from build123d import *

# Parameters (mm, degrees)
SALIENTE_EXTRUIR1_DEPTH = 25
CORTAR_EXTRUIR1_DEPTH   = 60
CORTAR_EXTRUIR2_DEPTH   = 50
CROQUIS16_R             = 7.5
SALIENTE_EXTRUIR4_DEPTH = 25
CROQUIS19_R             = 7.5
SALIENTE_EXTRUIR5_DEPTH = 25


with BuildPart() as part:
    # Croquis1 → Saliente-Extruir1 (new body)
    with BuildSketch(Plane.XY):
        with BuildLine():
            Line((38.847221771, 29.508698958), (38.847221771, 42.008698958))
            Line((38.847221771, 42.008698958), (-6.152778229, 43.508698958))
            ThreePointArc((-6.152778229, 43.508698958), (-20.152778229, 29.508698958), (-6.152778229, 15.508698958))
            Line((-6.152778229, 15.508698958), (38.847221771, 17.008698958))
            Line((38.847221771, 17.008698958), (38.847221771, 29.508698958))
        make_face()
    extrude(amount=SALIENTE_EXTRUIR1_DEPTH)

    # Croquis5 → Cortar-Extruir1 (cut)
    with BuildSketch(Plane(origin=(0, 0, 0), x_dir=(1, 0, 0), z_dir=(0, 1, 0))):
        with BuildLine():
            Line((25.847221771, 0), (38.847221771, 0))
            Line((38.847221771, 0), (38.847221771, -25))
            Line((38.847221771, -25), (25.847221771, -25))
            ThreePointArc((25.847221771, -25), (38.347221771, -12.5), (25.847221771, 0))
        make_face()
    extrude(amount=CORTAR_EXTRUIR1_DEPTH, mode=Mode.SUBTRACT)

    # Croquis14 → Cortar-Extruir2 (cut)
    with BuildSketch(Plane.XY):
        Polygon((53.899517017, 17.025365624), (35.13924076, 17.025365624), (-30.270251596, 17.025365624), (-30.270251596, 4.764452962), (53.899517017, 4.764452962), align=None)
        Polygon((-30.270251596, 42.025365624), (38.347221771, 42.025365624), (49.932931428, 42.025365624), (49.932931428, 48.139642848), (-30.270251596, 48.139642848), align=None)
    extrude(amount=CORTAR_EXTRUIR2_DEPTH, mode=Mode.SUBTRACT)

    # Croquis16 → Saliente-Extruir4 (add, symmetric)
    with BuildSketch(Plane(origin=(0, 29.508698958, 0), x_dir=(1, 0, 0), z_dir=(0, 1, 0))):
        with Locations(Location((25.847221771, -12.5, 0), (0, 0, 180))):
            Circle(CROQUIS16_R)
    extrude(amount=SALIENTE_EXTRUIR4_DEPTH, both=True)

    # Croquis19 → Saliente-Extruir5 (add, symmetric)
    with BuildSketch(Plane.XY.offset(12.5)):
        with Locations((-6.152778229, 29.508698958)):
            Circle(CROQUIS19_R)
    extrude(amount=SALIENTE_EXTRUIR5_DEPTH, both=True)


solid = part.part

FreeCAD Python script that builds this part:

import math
import FreeCAD as App
import Part
import Sketcher

V = App.Vector
Q = App.Units.Quantity


def add_polygon(sketch, points):
    """Adds a closed chain of lines whose ends are joined by coincident constraints."""
    first, n = sketch.GeometryCount, len(points)
    for a, b in zip(points, points[1:] + points[:1]):
        sketch.addGeometry(Part.LineSegment(App.Vector(*a, 0), App.Vector(*b, 0)), False)
    for i in range(n):
        sketch.addConstraint(Sketcher.Constraint("Coincident", first + i, 2, first + (i + 1) % n, 1))

doc = App.newDocument("Part")
body = doc.addObject("PartDesign::Body", "Body")

# Sketch on XY plane
sketch1 = body.newObject("Sketcher::SketchObject", "Sketch")
sketch1.AttachmentSupport = (doc.getObject("XY_Plane"), [""])
sketch1.MapMode = "FlatFace"
sketch1.addGeometry(Part.LineSegment(V(39, 42, 0), V(-6, 44, 0)), False)
sketch1.addGeometry(Part.ArcOfCircle(Part.Circle(V(-6, 30, 0), V(0, 0, 1), 14), math.radians(90), math.radians(270)), False)
sketch1.addGeometry(Part.LineSegment(V(-6, 16, 0), V(39, 17, 0)), False)
sketch1.addGeometry(Part.LineSegment(V(39, 17, 0), V(39, 42, 0)), False)
sketch1.addConstraint(Sketcher.Constraint("Coincident", 0, 2, 1, 1))
sketch1.addConstraint(Sketcher.Constraint("Coincident", 1, 2, 2, 1))
sketch1.addConstraint(Sketcher.Constraint("Coincident", 2, 2, 3, 1))
sketch1.addConstraint(Sketcher.Constraint("Coincident", 3, 2, 0, 1))
sketch1.addConstraint(Sketcher.Constraint("Vertical", 3))
sketch1.addConstraint(Sketcher.Constraint("Vertical", 1, 3, 0, 2))
sketch1.addConstraint(Sketcher.Constraint("Vertical", 0, 2, 1, 2))
sketch1.addConstraint(Sketcher.Constraint("Equal", 0, 2))
sketch1.addConstraint(Sketcher.Constraint("Radius", 1, Q("14 mm")))
sketch1.addConstraint(Sketcher.Constraint("DistanceY", 3, 1, 3, 2, Q("25 mm")))
sketch1.addConstraint(Sketcher.Constraint("DistanceX", 1, 2, 2, 2, Q("45 mm")))
sketch1.addConstraint(Sketcher.Constraint("DistanceY", -1, 1, 1, 3, Q("29.508699 mm")))
sketch1.addConstraint(Sketcher.Constraint("DistanceX", 1, 3, -1, 1, Q("6.152778 mm")))
pad1 = body.newObject("PartDesign::Pad", "Pad")
pad1.Profile = sketch1
pad1.Length = 25

# Sketch on XZ plane
sketch2 = body.newObject("Sketcher::SketchObject", "Sketch001")
sketch2.AttachmentSupport = (doc.getObject("XZ_Plane"), [""])
sketch2.MapMode = "FlatFace"
sketch2.addGeometry(Part.LineSegment(V(39, 0, 0), V(26, 0, 0)), False)
sketch2.addGeometry(Part.ArcOfCircle(Part.Circle(V(26, 12, 0), V(0, 0, 1), 12), math.radians(-90), math.radians(90)), False)
sketch2.addGeometry(Part.LineSegment(V(26, 25, 0), V(39, 25, 0)), False)
sketch2.addGeometry(Part.LineSegment(V(39, 25, 0), V(39, 0, 0)), False)
sketch2.addConstraint(Sketcher.Constraint("Tangent", 0, 2, 1, 1))
sketch2.addConstraint(Sketcher.Constraint("Tangent", 1, 2, 2, 1))
sketch2.addConstraint(Sketcher.Constraint("Coincident", 2, 2, 3, 1))
sketch2.addConstraint(Sketcher.Constraint("Coincident", 3, 2, 0, 1))
sketch2.addConstraint(Sketcher.Constraint("Horizontal", 0))
sketch2.addConstraint(Sketcher.Constraint("Horizontal", 2))
sketch2.addConstraint(Sketcher.Constraint("Vertical", 3))
sketch2.addConstraint(Sketcher.Constraint("PointOnObject", 0, 2, -1))
sketch2.addConstraint(Sketcher.Constraint("Radius", 1, Q("12.5 mm")))
sketch2.addConstraint(Sketcher.Constraint("DistanceX", 0, 2, 0, 1, Q("13 mm")))
sketch2.addConstraint(Sketcher.Constraint("DistanceX", -1, 1, 1, 3, Q("25.847222 mm")))
pocket1 = body.newObject("PartDesign::Pocket", "Pocket")
pocket1.Profile = sketch2
pocket1.Length = 60

# Sketch on XY plane
sketch3 = body.newObject("Sketcher::SketchObject", "Sketch002")
sketch3.AttachmentSupport = (doc.getObject("XY_Plane"), [""])
sketch3.MapMode = "FlatFace"
add_polygon(sketch3, [(54, 17), (-30, 17), (-30, 5), (54, 5)])  # lines 0-3
add_polygon(sketch3, [(-30, 42), (50, 42), (50, 48), (-30, 48)])  # lines 4-7
sketch3.addConstraint(Sketcher.Constraint("Horizontal", 0))
sketch3.addConstraint(Sketcher.Constraint("Vertical", 1))
sketch3.addConstraint(Sketcher.Constraint("Horizontal", 2))
sketch3.addConstraint(Sketcher.Constraint("Vertical", 3))
sketch3.addConstraint(Sketcher.Constraint("Horizontal", 4))
sketch3.addConstraint(Sketcher.Constraint("Vertical", 5))
sketch3.addConstraint(Sketcher.Constraint("Horizontal", 6))
sketch3.addConstraint(Sketcher.Constraint("Vertical", 7))
sketch3.addConstraint(Sketcher.Constraint("Vertical", 1, 2, 6, 2))
sketch3.addConstraint(Sketcher.Constraint("DistanceY", 3, 2, 4, 2, Q("25 mm")))
sketch3.addConstraint(Sketcher.Constraint("DistanceX", 0, 2, 0, 1, Q("84.169769 mm")))
sketch3.addConstraint(Sketcher.Constraint("DistanceX", 4, 1, 4, 2, Q("80.203183 mm")))
sketch3.addConstraint(Sketcher.Constraint("DistanceY", 1, 2, 1, 1, Q("12.260913 mm")))
sketch3.addConstraint(Sketcher.Constraint("DistanceY", 5, 1, 5, 2, Q("6.114277 mm")))
sketch3.addConstraint(Sketcher.Constraint("DistanceX", 0, 2, -1, 1, Q("30.270252 mm")))
sketch3.addConstraint(Sketcher.Constraint("DistanceY", -1, 1, 0, 2, Q("17.025366 mm")))
pocket2 = body.newObject("PartDesign::Pocket", "Pocket001")
pocket2.Profile = sketch3
pocket2.Length = 50
pocket2.Reversed = True

# Sketch on XZ plane
sketch4 = body.newObject("Sketcher::SketchObject", "Sketch003")
sketch4.AttachmentSupport = (doc.getObject("XZ_Plane"), [""])
sketch4.MapMode = "FlatFace"
sketch4.AttachmentOffset = App.Placement(V(0, 0, -29.508699), App.Rotation())
sketch4.addGeometry(Part.Circle(V(26, 12, 0), V(0, 0, 1), 8), False)
sketch4.addConstraint(Sketcher.Constraint("Diameter", 0, Q("15 mm")))
sketch4.addConstraint(Sketcher.Constraint("DistanceY", -1, 1, 0, 3, Q("12.5 mm")))
sketch4.addConstraint(Sketcher.Constraint("DistanceX", -1, 1, 0, 3, Q("25.847222 mm")))
pad2 = body.newObject("PartDesign::Pad", "Pad001")
pad2.Profile = sketch4
pad2.Length = 50
pad2.Midplane = True

# Sketch on XY plane
sketch5 = body.newObject("Sketcher::SketchObject", "Sketch004")
sketch5.AttachmentSupport = (doc.getObject("XY_Plane"), [""])
sketch5.MapMode = "FlatFace"
sketch5.AttachmentOffset = App.Placement(V(0, 0, 12.5), App.Rotation())
sketch5.addGeometry(Part.Circle(V(-6, 30, 0), V(0, 0, 1), 8), False)
sketch5.addConstraint(Sketcher.Constraint("Diameter", 0, Q("15 mm")))
sketch5.addConstraint(Sketcher.Constraint("DistanceY", -1, 1, 0, 3, Q("29.508699 mm")))
sketch5.addConstraint(Sketcher.Constraint("DistanceX", 0, 3, -1, 1, Q("6.152778 mm")))
pad3 = body.newObject("PartDesign::Pad", "Pad002")
pad3.Profile = sketch5
pad3.Length = 50
pad3.Midplane = True

doc.recompute()
